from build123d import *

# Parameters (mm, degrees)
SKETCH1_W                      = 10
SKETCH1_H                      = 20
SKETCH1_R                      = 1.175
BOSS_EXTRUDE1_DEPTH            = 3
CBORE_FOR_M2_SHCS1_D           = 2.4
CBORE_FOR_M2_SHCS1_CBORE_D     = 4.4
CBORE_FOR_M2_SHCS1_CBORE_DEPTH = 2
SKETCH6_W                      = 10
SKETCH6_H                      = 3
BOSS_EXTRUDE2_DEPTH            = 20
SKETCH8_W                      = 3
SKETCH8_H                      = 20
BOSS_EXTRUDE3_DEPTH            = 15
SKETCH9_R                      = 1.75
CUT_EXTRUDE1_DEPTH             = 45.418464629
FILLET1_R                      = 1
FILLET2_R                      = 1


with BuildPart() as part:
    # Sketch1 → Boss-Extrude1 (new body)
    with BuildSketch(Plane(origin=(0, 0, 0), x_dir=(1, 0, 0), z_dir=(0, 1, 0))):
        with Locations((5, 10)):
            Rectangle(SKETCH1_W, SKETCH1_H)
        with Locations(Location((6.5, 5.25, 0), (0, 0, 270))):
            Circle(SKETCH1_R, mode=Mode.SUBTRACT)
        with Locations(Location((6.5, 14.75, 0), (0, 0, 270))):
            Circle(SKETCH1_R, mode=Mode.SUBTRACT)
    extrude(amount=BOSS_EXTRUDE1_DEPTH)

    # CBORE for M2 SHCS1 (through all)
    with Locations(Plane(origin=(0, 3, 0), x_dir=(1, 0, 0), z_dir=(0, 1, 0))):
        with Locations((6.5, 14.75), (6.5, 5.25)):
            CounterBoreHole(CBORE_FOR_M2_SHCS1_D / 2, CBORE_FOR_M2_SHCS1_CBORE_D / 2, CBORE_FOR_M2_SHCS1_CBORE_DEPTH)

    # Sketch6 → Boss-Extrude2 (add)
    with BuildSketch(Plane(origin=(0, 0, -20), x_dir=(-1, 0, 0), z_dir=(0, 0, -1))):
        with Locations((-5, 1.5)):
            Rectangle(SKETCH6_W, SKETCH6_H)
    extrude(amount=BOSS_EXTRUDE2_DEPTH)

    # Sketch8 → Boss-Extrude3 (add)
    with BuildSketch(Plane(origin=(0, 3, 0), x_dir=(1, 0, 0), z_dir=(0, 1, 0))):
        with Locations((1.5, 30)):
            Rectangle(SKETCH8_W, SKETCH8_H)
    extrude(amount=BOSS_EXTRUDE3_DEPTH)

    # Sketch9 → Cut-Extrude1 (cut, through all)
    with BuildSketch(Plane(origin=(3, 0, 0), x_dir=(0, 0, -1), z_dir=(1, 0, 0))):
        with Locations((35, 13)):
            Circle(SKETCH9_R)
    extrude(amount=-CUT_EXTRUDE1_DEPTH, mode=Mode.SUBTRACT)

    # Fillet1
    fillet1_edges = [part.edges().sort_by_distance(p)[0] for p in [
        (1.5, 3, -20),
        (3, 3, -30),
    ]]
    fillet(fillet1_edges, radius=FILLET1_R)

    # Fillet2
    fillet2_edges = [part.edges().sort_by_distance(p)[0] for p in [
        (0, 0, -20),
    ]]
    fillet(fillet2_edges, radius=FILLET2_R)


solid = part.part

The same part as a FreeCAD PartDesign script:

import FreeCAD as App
import Part
import Sketcher
from FreeCAD import Vector
Q = App.Units.Quantity


def edges_at(feature, points):
    """Names of the edges that pass closest to the given points."""
    edges = feature.Shape.Edges
    near = lambda p: min(range(len(edges)), key=lambda i: edges[i].distToShape(Part.Vertex(*p))[0])
    return sorted({f"Edge{near(p) + 1}" for p in points})

doc = App.newDocument("Part")
params = doc.addObject("Spreadsheet::Sheet", "Params")
for row, (alias, value) in enumerate([
    ("sketch1_diameter", "2.35 mm"),
    ("sketch1_width", "10 mm"),
    ("sketch1_height", "20 mm"),
    ("pad1_length", "3 mm"),
    ("sketch2_diameter", "2.4 mm"),
    ("hole_diameter", "2.4 mm"),
    ("hole_cbore_diameter", "4.4 mm"),
    ("hole_cbore_depth", "2 mm"),
    ("sketch3_width", "10 mm"),
    ("sketch3_height", "3 mm"),
    ("pad2_length", "20 mm"),
    ("sketch4_width", "3 mm"),
    ("sketch4_height", "20 mm"),
    ("pad3_length", "15 mm"),
    ("sketch5_diameter", "3.5 mm"),
    ("fillet_radius", "1 mm"),
    ("fillet2_radius", "1 mm"),
], start=1):
    params.set(f"A{row}", alias)
    params.set(f"B{row}", "=" + value)
    params.setAlias(f"B{row}", alias)

body = doc.addObject("PartDesign::Body", "Body")

# Sketch on XZ plane
sketch1 = doc.addObject("Sketcher::SketchObject", "Sketch")
body.addObject(sketch1)
sketch1.AttachmentSupport = (doc.XZ_Plane, [""])
sketch1.MapMode = "FlatFace"
sketch1.addGeometry([
    Part.LineSegment(Vector(0, -20, 0), Vector(0, 0, 0)),  # 0
    Part.LineSegment(Vector(0, 0, 0), Vector(10, 0, 0)),  # 1
    Part.LineSegment(Vector(10, 0, 0), Vector(10, -20, 0)),  # 2
    Part.LineSegment(Vector(10, -20, 0), Vector(0, -20, 0)),  # 3
    Part.Circle(Vector(6.5, -5.25, 0), Vector(0, 0, 1), 1.175),  # 4
    Part.Circle(Vector(6.5, -14.75, 0), Vector(0, 0, 1), 1.175),  # 5
], False)
sketch1.addConstraint([
    Sketcher.Constraint("Coincident", 0, 2, 1, 1),
    Sketcher.Constraint("Coincident", 1, 2, 2, 1),
    Sketcher.Constraint("Coincident", 2, 2, 3, 1),
    Sketcher.Constraint("Coincident", 3, 2, 0, 1),
    Sketcher.Constraint("Vertical", 0),
    Sketcher.Constraint("Horizontal", 1),
    Sketcher.Constraint("Vertical", 2),
    Sketcher.Constraint("Horizontal", 3),
    Sketcher.Constraint("Coincident", 0, 2, -1, 1),
    Sketcher.Constraint("Equal", 4, 5),
    Sketcher.Constraint("Vertical", 4, 3, 5, 3),
    Sketcher.Constraint("Diameter", 4, Q("2.35 mm")),
    Sketcher.Constraint("DistanceX", 1, 1, 1, 2, Q("10 mm")),
    Sketcher.Constraint("DistanceY", 0, 1, 0, 2, Q("20 mm")),
    Sketcher.Constraint("DistanceX", -1, 1, 4, 3, Q("6.5 mm")),
    Sketcher.Constraint("DistanceY", 5, 3, 4, 3, Q("9.5 mm")),
    Sketcher.Constraint("DistanceY", 4, 3, -1, 1, Q("5.25 mm")),
])
sketch1.setExpression("Constraints[11]", "Params.sketch1_diameter")
sketch1.setExpression("Constraints[12]", "Params.sketch1_width")
sketch1.setExpression("Constraints[13]", "Params.sketch1_height")
pad1 = doc.addObject("PartDesign::Pad", "Pad")
body.addObject(pad1)
pad1.Profile = sketch1
pad1.setExpression("Length", "Params.pad1_length")
pad1.Reversed = True

# Sketch on XZ plane
sketch2 = doc.addObject("Sketcher::SketchObject", "Sketch001")
body.addObject(sketch2)
sketch2.AttachmentSupport = (doc.XZ_Plane, [""])
sketch2.MapMode = "FlatFace"
sketch2.AttachmentOffset = App.Placement(Vector(0, 0, -3), App.Rotation())
sketch2.addGeometry([
    Part.Circle(Vector(6.5, -14.75, 0), Vector(0, 0, 1), 1.2),
    Part.Circle(Vector(6.5, -5.25, 0), Vector(0, 0, 1), 1.2),
], False)
sketch2.addConstraint([
    Sketcher.Constraint("Equal", 0, 1),
    Sketcher.Constraint("Vertical", 0, 3, 1, 3),
    Sketcher.Constraint("Diameter", 0, Q("2.4 mm")),
    Sketcher.Constraint("DistanceX", -1, 1, 0, 3, Q("6.5 mm")),
    Sketcher.Constraint("DistanceY", 0, 3, 1, 3, Q("9.5 mm")),
    Sketcher.Constraint("DistanceY", 0, 3, -1, 1, Q("14.75 mm")),
])
sketch2.setExpression("Constraints[2]", "Params.sketch2_diameter")
doc.recompute()
hole = doc.addObject("PartDesign::Hole", "Hole")
body.addObject(hole)
hole.Profile = sketch2
hole.ThreadType = "None"
hole.setExpression("Diameter", "Params.hole_diameter")
hole.DepthType = "ThroughAll"
hole.HoleCutType = "Counterbore"
hole.setExpression("HoleCutDiameter", "Params.hole_cbore_diameter")
hole.setExpression("HoleCutDepth", "Params.hole_cbore_depth")
hole.Reversed = True

# Sketch on XY plane
sketch3 = doc.addObject("Sketcher::SketchObject", "Sketch002")
body.addObject(sketch3)
sketch3.AttachmentSupport = (doc.XY_Plane, [""])
sketch3.MapMode = "FlatFace"
sketch3.AttachmentOffset = App.Placement(Vector(0, 0, -20), App.Rotation())
sketch3.addGeometry([
    Part.LineSegment(Vector(10, 3, 0), Vector(10, 0, 0)),
    Part.LineSegment(Vector(10, 0, 0), Vector(0, 0, 0)),
    Part.LineSegment(Vector(0, 0, 0), Vector(0, 3, 0)),
    Part.LineSegment(Vector(0, 3, 0), Vector(10, 3, 0)),
], False)
sketch3.addConstraint([
    Sketcher.Constraint("Coincident", 0, 2, 1, 1),
    Sketcher.Constraint("Coincident", 1, 2, 2, 1),
    Sketcher.Constraint("Coincident", 2, 2, 3, 1),
    Sketcher.Constraint("Coincident", 3, 2, 0, 1),
    Sketcher.Constraint("Vertical", 0),
    Sketcher.Constraint("Horizontal", 1),
    Sketcher.Constraint("Vertical", 2),
    Sketcher.Constraint("Horizontal", 3),
    Sketcher.Constraint("Coincident", 1, 2, -1, 1),
    Sketcher.Constraint("DistanceX", 1, 2, 1, 1, Q("10 mm")),
    Sketcher.Constraint("DistanceY", 0, 2, 0, 1, Q("3 mm")),
])
sketch3.setExpression("Constraints[9]", "Params.sketch3_width")
sketch3.setExpression("Constraints[10]", "Params.sketch3_height")
pad2 = doc.addObject("PartDesign::Pad", "Pad001")
body.addObject(pad2)
pad2.Profile = sketch3
pad2.setExpression("Length", "Params.pad2_length")
pad2.Reversed = True

# Sketch on XZ plane
sketch4 = doc.addObject("Sketcher::SketchObject", "Sketch003")
body.addObject(sketch4)
sketch4.AttachmentSupport = (doc.XZ_Plane, [""])
sketch4.MapMode = "FlatFace"
sketch4.AttachmentOffset = App.Placement(Vector(0, 0, -3), App.Rotation())
sketch4.addGeometry([
    Part.LineSegment(Vector(0, -40, 0), Vector(0, -20, 0)),
    Part.LineSegment(Vector(0, -20, 0), Vector(3, -20, 0)),
    Part.LineSegment(Vector(3, -20, 0), Vector(3, -40, 0)),
    Part.LineSegment(Vector(3, -40, 0), Vector(0, -40, 0)),
], False)
sketch4.addConstraint([
    Sketcher.Constraint("Coincident", 0, 2, 1, 1),
    Sketcher.Constraint("Coincident", 1, 2, 2, 1),
    Sketcher.Constraint("Coincident", 2, 2, 3, 1),
    Sketcher.Constraint("Coincident", 3, 2, 0, 1),
    Sketcher.Constraint("Vertical", 0),
    Sketcher.Constraint("Horizontal", 1),
    Sketcher.Constraint("Vertical", 2),
    Sketcher.Constraint("Horizontal", 3),
    Sketcher.Constraint("PointOnObject", 0, 2, -2),
    Sketcher.Constraint("DistanceX", 1, 1, 1, 2, Q("3 mm")),
    Sketcher.Constraint("DistanceY", 0, 1, 0, 2, Q("20 mm")),
    Sketcher.Constraint("DistanceY", 0, 2, -1, 1, Q("20 mm")),
])
sketch4.setExpression("Constraints[9]", "Params.sketch4_width")
sketch4.setExpression("Constraints[10]", "Params.sketch4_height")
pad3 = doc.addObject("PartDesign::Pad", "Pad002")
body.addObject(pad3)
pad3.Profile = sketch4
pad3.setExpression("Length", "Params.pad3_length")
pad3.Reversed = True

# Sketch on YZ plane
sketch5 = doc.addObject("Sketcher::SketchObject", "Sketch004")
body.addObject(sketch5)
sketch5.AttachmentSupport = (doc.YZ_Plane, [""])
sketch5.MapMode = "FlatFace"
sketch5.AttachmentOffset = App.Placement(Vector(0, 0, 3), App.Rotation())
sketch5.addGeometry(Part.Circle(Vector(13, -35, 0), Vector(0, 0, 1), 1.75), False)
sketch5.addConstraint([
    Sketcher.Constraint("Diameter", 0, Q("3.5 mm")),
    Sketcher.Constraint("DistanceX", -1, 1, 0, 3, Q("13 mm")),
    Sketcher.Constraint("DistanceY", 0, 3, -1, 1, Q("35 mm")),
])
sketch5.setExpression("Constraints[0]", "Params.sketch5_diameter")
pocket1 = doc.addObject("PartDesign::Pocket", "Pocket")
body.addObject(pocket1)
pocket1.Profile = sketch5
pocket1.Type = "ThroughAll"
doc.recompute()

fillet = doc.addObject("PartDesign::Fillet", "Fillet")
body.addObject(fillet)
fillet.Base = (pocket1, edges_at(pocket1, [(1.5, 3, -20), (3, 3, -30)]))
fillet.setExpression("Radius", "Params.fillet_radius")
doc.recompute()

fillet2 = doc.addObject("PartDesign::Fillet", "Fillet001")
body.addObject(fillet2)
fillet2.Base = (fillet, edges_at(fillet, [(0, 0, -20)]))
fillet2.setExpression("Radius", "Params.fillet2_radius")

doc.recompute()
